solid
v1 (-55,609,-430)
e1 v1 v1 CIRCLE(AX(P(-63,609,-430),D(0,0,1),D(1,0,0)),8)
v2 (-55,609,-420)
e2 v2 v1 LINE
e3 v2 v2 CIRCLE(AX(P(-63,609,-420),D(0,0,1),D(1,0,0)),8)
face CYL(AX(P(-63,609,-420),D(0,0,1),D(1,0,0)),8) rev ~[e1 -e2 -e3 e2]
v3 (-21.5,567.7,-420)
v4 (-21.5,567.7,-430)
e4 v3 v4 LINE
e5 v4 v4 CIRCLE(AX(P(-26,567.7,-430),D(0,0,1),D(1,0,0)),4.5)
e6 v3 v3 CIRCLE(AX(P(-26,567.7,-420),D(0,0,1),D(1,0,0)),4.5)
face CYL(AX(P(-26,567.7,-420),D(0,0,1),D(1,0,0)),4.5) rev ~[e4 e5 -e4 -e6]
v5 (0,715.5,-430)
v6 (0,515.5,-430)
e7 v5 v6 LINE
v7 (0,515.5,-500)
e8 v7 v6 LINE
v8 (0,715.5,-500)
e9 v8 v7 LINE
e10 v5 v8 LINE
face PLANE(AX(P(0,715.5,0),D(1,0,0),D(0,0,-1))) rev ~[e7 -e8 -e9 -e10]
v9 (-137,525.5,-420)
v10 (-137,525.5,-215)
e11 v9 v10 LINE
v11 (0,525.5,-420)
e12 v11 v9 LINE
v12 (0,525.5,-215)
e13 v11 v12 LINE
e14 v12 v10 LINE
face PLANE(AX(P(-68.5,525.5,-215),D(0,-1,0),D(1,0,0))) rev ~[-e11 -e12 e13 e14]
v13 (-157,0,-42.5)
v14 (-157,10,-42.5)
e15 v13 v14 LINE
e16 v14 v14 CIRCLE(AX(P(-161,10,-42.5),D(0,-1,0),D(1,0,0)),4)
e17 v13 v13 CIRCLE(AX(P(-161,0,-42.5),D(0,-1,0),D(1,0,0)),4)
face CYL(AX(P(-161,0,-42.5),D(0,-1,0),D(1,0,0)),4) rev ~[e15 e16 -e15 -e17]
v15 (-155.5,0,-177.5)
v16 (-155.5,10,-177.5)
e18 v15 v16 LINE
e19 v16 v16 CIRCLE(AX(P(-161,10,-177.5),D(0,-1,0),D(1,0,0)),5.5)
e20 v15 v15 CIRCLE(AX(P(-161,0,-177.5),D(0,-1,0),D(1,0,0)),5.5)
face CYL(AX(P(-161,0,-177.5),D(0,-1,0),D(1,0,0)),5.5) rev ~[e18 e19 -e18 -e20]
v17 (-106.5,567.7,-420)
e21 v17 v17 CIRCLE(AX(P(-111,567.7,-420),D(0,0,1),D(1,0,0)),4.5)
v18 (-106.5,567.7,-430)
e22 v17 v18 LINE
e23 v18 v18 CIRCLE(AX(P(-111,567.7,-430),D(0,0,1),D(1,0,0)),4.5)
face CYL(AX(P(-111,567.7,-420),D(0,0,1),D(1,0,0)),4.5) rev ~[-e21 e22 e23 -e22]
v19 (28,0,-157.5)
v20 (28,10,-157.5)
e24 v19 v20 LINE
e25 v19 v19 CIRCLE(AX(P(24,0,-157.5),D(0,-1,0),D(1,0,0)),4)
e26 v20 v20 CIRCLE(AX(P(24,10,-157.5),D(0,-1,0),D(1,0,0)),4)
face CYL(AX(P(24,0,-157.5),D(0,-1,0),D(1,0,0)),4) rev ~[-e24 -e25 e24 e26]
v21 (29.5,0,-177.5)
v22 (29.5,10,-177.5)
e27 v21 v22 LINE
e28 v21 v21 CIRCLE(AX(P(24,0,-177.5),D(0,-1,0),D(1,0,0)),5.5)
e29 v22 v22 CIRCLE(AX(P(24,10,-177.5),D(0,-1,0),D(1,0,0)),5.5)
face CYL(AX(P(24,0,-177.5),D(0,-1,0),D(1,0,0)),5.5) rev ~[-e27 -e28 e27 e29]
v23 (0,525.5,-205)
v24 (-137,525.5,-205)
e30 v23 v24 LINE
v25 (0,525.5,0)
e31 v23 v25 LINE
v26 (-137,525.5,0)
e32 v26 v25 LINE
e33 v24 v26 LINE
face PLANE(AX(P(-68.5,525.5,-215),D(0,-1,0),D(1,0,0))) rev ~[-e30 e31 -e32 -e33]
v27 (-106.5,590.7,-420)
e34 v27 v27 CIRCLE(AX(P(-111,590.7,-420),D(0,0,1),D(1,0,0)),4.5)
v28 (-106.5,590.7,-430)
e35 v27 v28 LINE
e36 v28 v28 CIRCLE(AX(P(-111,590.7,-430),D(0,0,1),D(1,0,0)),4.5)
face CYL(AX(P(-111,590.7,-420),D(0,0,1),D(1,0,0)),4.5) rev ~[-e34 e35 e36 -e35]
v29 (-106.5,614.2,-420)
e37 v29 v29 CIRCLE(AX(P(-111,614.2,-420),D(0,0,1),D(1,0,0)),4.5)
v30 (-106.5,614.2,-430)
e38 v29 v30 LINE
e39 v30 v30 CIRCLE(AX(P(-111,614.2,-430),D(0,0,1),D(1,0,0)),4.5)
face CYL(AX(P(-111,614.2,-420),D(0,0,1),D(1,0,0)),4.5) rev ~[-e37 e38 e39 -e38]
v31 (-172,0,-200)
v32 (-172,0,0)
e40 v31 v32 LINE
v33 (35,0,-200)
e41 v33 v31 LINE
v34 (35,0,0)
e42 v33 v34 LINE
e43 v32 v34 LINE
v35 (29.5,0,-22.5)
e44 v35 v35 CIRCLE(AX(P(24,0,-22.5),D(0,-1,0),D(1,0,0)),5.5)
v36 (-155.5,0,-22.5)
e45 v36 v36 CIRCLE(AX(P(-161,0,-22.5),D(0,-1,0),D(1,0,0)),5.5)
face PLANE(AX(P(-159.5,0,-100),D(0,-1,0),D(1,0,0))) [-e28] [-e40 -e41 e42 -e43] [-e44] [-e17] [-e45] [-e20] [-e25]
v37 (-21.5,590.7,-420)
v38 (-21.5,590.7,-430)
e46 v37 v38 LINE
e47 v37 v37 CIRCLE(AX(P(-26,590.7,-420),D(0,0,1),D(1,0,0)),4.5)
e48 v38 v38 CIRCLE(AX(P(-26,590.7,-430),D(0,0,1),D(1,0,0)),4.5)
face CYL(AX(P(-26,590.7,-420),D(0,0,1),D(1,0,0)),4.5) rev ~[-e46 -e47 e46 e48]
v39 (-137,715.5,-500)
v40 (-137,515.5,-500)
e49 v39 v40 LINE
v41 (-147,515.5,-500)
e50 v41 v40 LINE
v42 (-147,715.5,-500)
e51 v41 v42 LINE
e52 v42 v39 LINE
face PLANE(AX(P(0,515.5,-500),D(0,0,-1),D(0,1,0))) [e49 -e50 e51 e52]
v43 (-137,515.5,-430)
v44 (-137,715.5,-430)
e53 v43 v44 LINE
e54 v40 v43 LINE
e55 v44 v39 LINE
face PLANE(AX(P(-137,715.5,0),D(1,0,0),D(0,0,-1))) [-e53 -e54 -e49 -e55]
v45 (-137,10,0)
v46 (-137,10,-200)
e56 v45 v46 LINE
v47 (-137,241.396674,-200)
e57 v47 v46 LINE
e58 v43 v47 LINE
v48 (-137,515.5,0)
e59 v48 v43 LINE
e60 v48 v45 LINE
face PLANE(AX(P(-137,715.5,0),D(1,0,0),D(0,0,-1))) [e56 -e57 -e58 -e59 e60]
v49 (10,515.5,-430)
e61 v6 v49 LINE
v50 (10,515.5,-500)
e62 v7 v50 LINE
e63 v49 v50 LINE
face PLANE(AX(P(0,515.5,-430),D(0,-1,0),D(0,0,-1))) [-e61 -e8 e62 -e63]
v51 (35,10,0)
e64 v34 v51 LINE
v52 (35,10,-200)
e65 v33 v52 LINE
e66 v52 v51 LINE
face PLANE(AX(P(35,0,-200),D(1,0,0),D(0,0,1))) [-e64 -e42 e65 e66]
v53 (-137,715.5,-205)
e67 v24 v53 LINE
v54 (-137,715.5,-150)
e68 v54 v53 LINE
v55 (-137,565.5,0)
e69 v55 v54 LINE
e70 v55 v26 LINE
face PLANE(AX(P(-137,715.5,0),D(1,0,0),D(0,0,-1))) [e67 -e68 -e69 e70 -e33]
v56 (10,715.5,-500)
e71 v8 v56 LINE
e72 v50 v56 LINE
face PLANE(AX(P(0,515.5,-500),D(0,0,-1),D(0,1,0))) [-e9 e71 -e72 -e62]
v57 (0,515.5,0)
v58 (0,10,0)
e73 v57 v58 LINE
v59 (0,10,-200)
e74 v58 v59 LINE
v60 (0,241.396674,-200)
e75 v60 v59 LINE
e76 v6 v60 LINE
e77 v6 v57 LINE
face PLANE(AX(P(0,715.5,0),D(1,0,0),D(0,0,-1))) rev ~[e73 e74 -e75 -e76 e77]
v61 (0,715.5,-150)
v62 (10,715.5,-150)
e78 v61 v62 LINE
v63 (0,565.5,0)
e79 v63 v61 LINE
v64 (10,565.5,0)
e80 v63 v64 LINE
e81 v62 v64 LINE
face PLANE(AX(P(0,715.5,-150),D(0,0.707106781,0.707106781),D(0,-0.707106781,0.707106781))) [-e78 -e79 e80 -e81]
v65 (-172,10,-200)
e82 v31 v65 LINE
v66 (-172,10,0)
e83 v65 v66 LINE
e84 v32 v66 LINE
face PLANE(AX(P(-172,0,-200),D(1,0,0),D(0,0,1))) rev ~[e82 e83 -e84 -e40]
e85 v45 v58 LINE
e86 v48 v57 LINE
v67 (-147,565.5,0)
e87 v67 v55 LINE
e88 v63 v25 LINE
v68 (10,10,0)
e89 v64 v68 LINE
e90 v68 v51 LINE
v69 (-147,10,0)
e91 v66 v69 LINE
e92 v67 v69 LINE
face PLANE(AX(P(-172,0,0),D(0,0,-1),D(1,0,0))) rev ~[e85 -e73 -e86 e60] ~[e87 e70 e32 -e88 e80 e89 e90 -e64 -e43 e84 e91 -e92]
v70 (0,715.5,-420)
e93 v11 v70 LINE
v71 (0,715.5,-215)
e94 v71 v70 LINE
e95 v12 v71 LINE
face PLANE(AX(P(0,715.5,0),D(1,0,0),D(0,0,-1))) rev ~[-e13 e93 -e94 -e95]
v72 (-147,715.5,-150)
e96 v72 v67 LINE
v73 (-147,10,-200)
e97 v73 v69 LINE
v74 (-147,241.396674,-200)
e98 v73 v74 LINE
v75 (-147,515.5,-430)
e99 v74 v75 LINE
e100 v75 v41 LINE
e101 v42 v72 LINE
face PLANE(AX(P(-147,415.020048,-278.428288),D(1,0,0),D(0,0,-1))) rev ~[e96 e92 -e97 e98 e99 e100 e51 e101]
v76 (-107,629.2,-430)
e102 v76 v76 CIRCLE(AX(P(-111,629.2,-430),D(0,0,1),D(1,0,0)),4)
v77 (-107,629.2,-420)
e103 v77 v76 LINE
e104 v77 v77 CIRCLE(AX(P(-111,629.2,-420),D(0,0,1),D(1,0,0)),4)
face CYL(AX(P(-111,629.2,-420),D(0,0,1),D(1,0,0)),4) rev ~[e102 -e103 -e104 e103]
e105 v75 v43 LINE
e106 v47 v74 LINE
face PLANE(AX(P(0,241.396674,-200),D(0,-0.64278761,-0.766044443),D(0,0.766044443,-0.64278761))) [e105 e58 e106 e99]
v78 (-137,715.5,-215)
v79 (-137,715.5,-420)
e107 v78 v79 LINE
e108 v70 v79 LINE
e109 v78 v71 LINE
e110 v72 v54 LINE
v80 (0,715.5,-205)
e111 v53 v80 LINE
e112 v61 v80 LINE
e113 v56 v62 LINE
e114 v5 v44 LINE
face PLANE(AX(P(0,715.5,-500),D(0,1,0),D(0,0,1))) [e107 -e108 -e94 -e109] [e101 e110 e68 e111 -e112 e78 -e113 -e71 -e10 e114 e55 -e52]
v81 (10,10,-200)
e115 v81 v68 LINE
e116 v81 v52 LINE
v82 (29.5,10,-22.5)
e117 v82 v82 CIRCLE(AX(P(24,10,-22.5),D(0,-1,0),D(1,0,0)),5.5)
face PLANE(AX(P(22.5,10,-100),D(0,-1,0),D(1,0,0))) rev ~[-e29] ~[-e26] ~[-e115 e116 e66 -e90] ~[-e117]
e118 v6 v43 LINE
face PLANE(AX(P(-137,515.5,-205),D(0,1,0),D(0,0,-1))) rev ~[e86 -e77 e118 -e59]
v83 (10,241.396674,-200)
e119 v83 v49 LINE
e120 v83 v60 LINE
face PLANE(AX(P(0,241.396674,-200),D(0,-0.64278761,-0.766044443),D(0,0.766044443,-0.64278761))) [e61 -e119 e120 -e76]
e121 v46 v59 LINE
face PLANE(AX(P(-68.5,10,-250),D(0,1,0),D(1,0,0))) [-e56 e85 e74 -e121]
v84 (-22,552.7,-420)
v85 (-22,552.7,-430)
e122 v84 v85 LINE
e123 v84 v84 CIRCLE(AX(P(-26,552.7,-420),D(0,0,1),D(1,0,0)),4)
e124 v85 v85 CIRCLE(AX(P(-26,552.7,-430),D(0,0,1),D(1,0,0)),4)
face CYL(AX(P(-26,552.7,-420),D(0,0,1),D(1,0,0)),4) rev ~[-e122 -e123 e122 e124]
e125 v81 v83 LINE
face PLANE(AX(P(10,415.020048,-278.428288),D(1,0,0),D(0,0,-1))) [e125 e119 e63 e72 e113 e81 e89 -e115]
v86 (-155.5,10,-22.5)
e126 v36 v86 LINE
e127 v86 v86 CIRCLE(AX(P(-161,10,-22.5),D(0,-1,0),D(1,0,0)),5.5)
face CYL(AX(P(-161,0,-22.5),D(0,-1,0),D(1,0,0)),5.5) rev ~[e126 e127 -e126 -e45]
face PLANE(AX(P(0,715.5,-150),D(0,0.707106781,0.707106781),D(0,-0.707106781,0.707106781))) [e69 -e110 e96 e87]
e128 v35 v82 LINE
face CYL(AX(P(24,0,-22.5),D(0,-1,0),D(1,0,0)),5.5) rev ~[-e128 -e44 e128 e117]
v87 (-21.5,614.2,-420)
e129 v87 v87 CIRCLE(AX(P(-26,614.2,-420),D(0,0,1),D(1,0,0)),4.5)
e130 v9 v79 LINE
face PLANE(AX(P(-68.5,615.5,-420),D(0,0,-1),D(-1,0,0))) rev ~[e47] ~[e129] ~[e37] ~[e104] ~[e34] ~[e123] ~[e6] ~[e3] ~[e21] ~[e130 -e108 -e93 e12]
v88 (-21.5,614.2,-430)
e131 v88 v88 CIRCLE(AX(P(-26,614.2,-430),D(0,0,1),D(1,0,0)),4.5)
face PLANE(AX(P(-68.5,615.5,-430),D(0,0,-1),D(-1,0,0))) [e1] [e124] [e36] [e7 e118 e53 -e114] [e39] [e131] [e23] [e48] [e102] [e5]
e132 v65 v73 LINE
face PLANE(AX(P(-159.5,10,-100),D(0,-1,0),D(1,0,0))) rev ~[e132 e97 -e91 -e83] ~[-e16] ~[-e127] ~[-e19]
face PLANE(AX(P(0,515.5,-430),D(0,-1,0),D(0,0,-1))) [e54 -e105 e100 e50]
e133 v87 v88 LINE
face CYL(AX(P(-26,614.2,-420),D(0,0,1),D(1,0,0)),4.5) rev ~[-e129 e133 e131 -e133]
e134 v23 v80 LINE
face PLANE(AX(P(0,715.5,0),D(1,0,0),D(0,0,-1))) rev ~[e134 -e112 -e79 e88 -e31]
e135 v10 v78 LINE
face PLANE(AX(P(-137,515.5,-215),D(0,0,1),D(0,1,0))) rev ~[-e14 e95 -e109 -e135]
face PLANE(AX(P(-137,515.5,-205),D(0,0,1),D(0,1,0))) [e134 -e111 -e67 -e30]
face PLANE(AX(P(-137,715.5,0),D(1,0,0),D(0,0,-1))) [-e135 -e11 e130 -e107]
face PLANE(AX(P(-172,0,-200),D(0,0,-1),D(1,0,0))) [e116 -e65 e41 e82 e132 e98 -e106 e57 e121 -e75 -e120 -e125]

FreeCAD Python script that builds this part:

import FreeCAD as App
import Part
import Sketcher

V = App.Vector
Q = App.Units.Quantity

doc = App.newDocument("Part")
params = doc.addObject("Spreadsheet::Sheet", "Params")
for row, (alias, value) in enumerate([
    ("sketch1_width", "200 mm"),
    ("sketch1_height", "70 mm"),
    ("sketch1_height2", "350 mm"),
    ("sketch1_width2", "565.5 mm"),
    ("pad1_length", "10 mm"),
    ("pad1_length2", "147 mm"),
    ("sketch2_width", "137 mm"),
    ("sketch2_height", "500 mm"),
    ("pocket1_length", "705.5 mm"),
    ("sketch3_width", "137 mm"),
    ("sketch3_height", "200 mm"),
    ("pad2_length", "10 mm"),
    ("sketch4_diameter", "9 mm"),
    ("sketch5_diameter", "9 mm"),
    ("sketch6_diameter", "9 mm"),
    ("sketch7_diameter", "9 mm"),
    ("sketch8_diameter", "16 mm"),
    ("sketch9_diameter", "8 mm"),
    ("sketch10_diameter", "8 mm"),
    ("sketch11_diameter", "9 mm"),
    ("sketch12_diameter", "9 mm"),
    ("sketch13_width", "25 mm"),
    ("sketch13_height", "200 mm"),
    ("pad3_length", "10 mm"),
    ("sketch14_diameter", "11 mm"),
    ("sketch14_diameter2", "8 mm"),
    ("sketch15_width", "137 mm"),
    ("sketch15_height", "430 mm"),
    ("pad4_length", "10 mm"),
    ("sketch16_width", "200 mm"),
    ("sketch16_height", "10 mm"),
    ("pad5_length", "137 mm"),
], start=1):
    params.set(f"A{row}", alias)
    params.set(f"B{row}", "=" + value)
    params.setAlias(f"B{row}", alias)

body = doc.addObject("PartDesign::Body", "Body")

sketch1 = body.newObject("Sketcher::SketchObject", "Sketch")
sketch1.AttachmentSupport = (doc.getObject("YZ_Plane"), [""])
sketch1.MapMode = "FlatFace"
sketch1.addGeometry(Part.LineSegment(V(241.396674, -200, 0), V(515.5, -430, 0)), False)
sketch1.addGeometry(Part.LineSegment(V(515.5, -430, 0), V(515.5, -500, 0)), False)
sketch1.addGeometry(Part.LineSegment(V(515.5, -500, 0), V(715.5, -500, 0)), False)
sketch1.addGeometry(Part.LineSegment(V(715.5, -500, 0), V(715.5, -150, 0)), False)
sketch1.addGeometry(Part.LineSegment(V(715.5, -150, 0), V(565.5, 0, 0)), False)
sketch1.addGeometry(Part.LineSegment(V(565.5, 0, 0), V(0, 0, 0)), False)
sketch1.addGeometry(Part.LineSegment(V(0, 0, 0), V(0, -200, 0)), False)
sketch1.addGeometry(Part.LineSegment(V(0, -200, 0), V(241.396674, -200, 0)), False)
sketch1.addConstraint(Sketcher.Constraint("Coincident", 0, 2, 1, 1))
sketch1.addConstraint(Sketcher.Constraint("Coincident", 1, 2, 2, 1))
sketch1.addConstraint(Sketcher.Constraint("Coincident", 2, 2, 3, 1))
sketch1.addConstraint(Sketcher.Constraint("Coincident", 3, 2, 4, 1))
sketch1.addConstraint(Sketcher.Constraint("Coincident", 4, 2, 5, 1))
sketch1.addConstraint(Sketcher.Constraint("Coincident", 5, 2, 6, 1))
sketch1.addConstraint(Sketcher.Constraint("Coincident", 6, 2, 7, 1))
sketch1.addConstraint(Sketcher.Constraint("Coincident", 7, 2, 0, 1))
sketch1.addConstraint(Sketcher.Constraint("Vertical", 1))
sketch1.addConstraint(Sketcher.Constraint("Horizontal", 2))
sketch1.addConstraint(Sketcher.Constraint("Vertical", 3))
sketch1.addConstraint(Sketcher.Constraint("Horizontal", 5))
sketch1.addConstraint(Sketcher.Constraint("Vertical", 6))
sketch1.addConstraint(Sketcher.Constraint("Horizontal", 7))
sketch1.addConstraint(Sketcher.Constraint("Coincident", 5, 2, -1, 1))
sketch1.addConstraint(Sketcher.Constraint("Equal", 2, 6))
sketch1.addConstraint(Sketcher.Constraint("DistanceX", 2, 1, 2, 2, 200.0))
sketch1.addConstraint(Sketcher.Constraint("DistanceY", 1, 2, 1, 1, 70.0))
sketch1.addConstraint(Sketcher.Constraint("DistanceY", 3, 1, 3, 2, 350.0))
sketch1.addConstraint(Sketcher.Constraint("Angle", 0, Q("-40 deg")))
sketch1.addConstraint(Sketcher.Constraint("Angle", 4, Q("135 deg")))
sketch1.addConstraint(Sketcher.Constraint("DistanceX", 5, 2, 5, 1, 565.5))
sketch1.addConstraint(Sketcher.Constraint("DistanceY", 0, 2, -1, 1, 430.0))
sketch1.setExpression("Constraints[16]", "Params.sketch1_width")
sketch1.setExpression("Constraints[17]", "Params.sketch1_height")
sketch1.setExpression("Constraints[18]", "Params.sketch1_height2")
sketch1.setExpression("Constraints[21]", "Params.sketch1_width2")
pad1 = body.newObject("PartDesign::Pad", "Pad")
pad1.Profile = sketch1
pad1.Type = "TwoLengths"
pad1.setExpression("Length", "Params.pad1_length")
pad1.setExpression("Length2", "Params.pad1_length2")

sketch2 = body.newObject("Sketcher::SketchObject", "Sketch001")
sketch2.AttachmentSupport = (doc.getObject("XZ_Plane"), [""])
sketch2.MapMode = "FlatFace"
sketch2.AttachmentOffset = App.Placement(V(0, 0, -715.5), App.Rotation())
sketch2.addGeometry(Part.LineSegment(V(-137, -500, 0), V(-137, 0, 0)), False)
sketch2.addGeometry(Part.LineSegment(V(-137, 0, 0), V(0, 0, 0)), False)
sketch2.addGeometry(Part.LineSegment(V(0, 0, 0), V(0, -500, 0)), False)
sketch2.addGeometry(Part.LineSegment(V(0, -500, 0), V(-137, -500, 0)), False)
sketch2.addConstraint(Sketcher.Constraint("Coincident", 0, 2, 1, 1))
sketch2.addConstraint(Sketcher.Constraint("Coincident", 1, 2, 2, 1))
sketch2.addConstraint(Sketcher.Constraint("Coincident", 2, 2, 3, 1))
sketch2.addConstraint(Sketcher.Constraint("Coincident", 3, 2, 0, 1))
sketch2.addConstraint(Sketcher.Constraint("Vertical", 0))
sketch2.addConstraint(Sketcher.Constraint("Horizontal", 1))
sketch2.addConstraint(Sketcher.Constraint("Vertical", 2))
sketch2.addConstraint(Sketcher.Constraint("Horizontal", 3))
sketch2.addConstraint(Sketcher.Constraint("Coincident", 1, 2, -1, 1))
sketch2.addConstraint(Sketcher.Constraint("DistanceX", 1, 1, 1, 2, 137.0))
sketch2.addConstraint(Sketcher.Constraint("DistanceY", 0, 1, 0, 2, 500.0))
sketch2.setExpression("Constraints[9]", "Params.sketch2_width")
sketch2.setExpression("Constraints[10]", "Params.sketch2_height")
pocket1 = body.newObject("PartDesign::Pocket", "Pocket")
pocket1.Profile = sketch2
pocket1.setExpression("Length", "Params.pocket1_length")
pocket1.Reversed = True

sketch3 = body.newObject("Sketcher::SketchObject", "Sketch002")
sketch3.AttachmentSupport = (doc.getObject("XY_Plane"), [""])
sketch3.MapMode = "FlatFace"
sketch3.AttachmentOffset = App.Placement(V(0, 0, -430), App.Rotation())
sketch3.addGeometry(Part.LineSegment(V(0, 715.5, 0), V(0, 515.5, 0)), False)
sketch3.addGeometry(Part.LineSegment(V(0, 515.5, 0), V(-137, 515.5, 0)), False)
sketch3.addGeometry(Part.LineSegment(V(-137, 515.5, 0), V(-137, 715.5, 0)), False)
sketch3.addGeometry(Part.LineSegment(V(-137, 715.5, 0), V(0, 715.5, 0)), False)
sketch3.addConstraint(Sketcher.Constraint("Coincident", 0, 2, 1, 1))
sketch3.addConstraint(Sketcher.Constraint("Coincident", 1, 2, 2, 1))
sketch3.addConstraint(Sketcher.Constraint("Coincident", 2, 2, 3, 1))
sketch3.addConstraint(Sketcher.Constraint("Coincident", 3, 2, 0, 1))
sketch3.addConstraint(Sketcher.Constraint("Vertical", 0))
sketch3.addConstraint(Sketcher.Constraint("Horizontal", 1))
sketch3.addConstraint(Sketcher.Constraint("Vertical", 2))
sketch3.addConstraint(Sketcher.Constraint("Horizontal", 3))
sketch3.addConstraint(Sketcher.Constraint("PointOnObject", 0, 2, -2))
sketch3.addConstraint(Sketcher.Constraint("DistanceX", 1, 2, 1, 1, 137.0))
sketch3.addConstraint(Sketcher.Constraint("DistanceY", 0, 2, 0, 1, 200.0))
sketch3.addConstraint(Sketcher.Constraint("DistanceY", -1, 1, 0, 2, 515.5))
sketch3.setExpression("Constraints[9]", "Params.sketch3_width")
sketch3.setExpression("Constraints[10]", "Params.sketch3_height")
pad2 = body.newObject("PartDesign::Pad", "Pad001")
pad2.Profile = sketch3
pad2.setExpression("Length", "Params.pad2_length")

sketch4 = body.newObject("Sketcher::SketchObject", "Sketch003")
sketch4.AttachmentSupport = (doc.getObject("XY_Plane"), [""])
sketch4.MapMode = "FlatFace"
sketch4.AttachmentOffset = App.Placement(V(0, 0, -420), App.Rotation())
sketch4.addGeometry(Part.Circle(V(-111, 567.7, 0), V(0, 0, 1), 4.5), False)
sketch4.addConstraint(Sketcher.Constraint("Diameter", 0, 9.0))
sketch4.addConstraint(Sketcher.Constraint("DistanceX", 0, 3, -1, 1, 111.0))
sketch4.addConstraint(Sketcher.Constraint("DistanceY", -1, 1, 0, 3, 567.7))
sketch4.setExpression("Constraints[0]", "Params.sketch4_diameter")
pocket2 = body.newObject("PartDesign::Pocket", "Pocket001")
pocket2.Profile = sketch4
pocket2.Type = "UpToFirst"

sketch5 = body.newObject("Sketcher::SketchObject", "Sketch004")
sketch5.AttachmentSupport = (doc.getObject("XY_Plane"), [""])
sketch5.MapMode = "FlatFace"
sketch5.AttachmentOffset = App.Placement(V(0, 0, -420), App.Rotation())
sketch5.addGeometry(Part.Circle(V(-26, 567.7, 0), V(0, 0, 1), 4.5), False)
sketch5.addConstraint(Sketcher.Constraint("Diameter", 0, 9.0))
sketch5.addConstraint(Sketcher.Constraint("DistanceX", 0, 3, -1, 1, 26.0))
sketch5.addConstraint(Sketcher.Constraint("DistanceY", -1, 1, 0, 3, 567.7))
sketch5.setExpression("Constraints[0]", "Params.sketch5_diameter")
pocket3 = body.newObject("PartDesign::Pocket", "Pocket002")
pocket3.Profile = sketch5
pocket3.Type = "UpToFirst"

sketch6 = body.newObject("Sketcher::SketchObject", "Sketch005")
sketch6.AttachmentSupport = (doc.getObject("XY_Plane"), [""])
sketch6.MapMode = "FlatFace"
sketch6.AttachmentOffset = App.Placement(V(0, 0, -420), App.Rotation())
sketch6.addGeometry(Part.Circle(V(-111, 614.2, 0), V(0, 0, 1), 4.5), False)
sketch6.addConstraint(Sketcher.Constraint("Diameter", 0, 9.0))
sketch6.addConstraint(Sketcher.Constraint("DistanceX", 0, 3, -1, 1, 111.0))
sketch6.addConstraint(Sketcher.Constraint("DistanceY", -1, 1, 0, 3, 614.2))
sketch6.setExpression("Constraints[0]", "Params.sketch6_diameter")
pocket4 = body.newObject("PartDesign::Pocket", "Pocket003")
pocket4.Profile = sketch6
pocket4.Type = "UpToFirst"

sketch7 = body.newObject("Sketcher::SketchObject", "Sketch006")
sketch7.AttachmentSupport = (doc.getObject("XY_Plane"), [""])
sketch7.MapMode = "FlatFace"
sketch7.AttachmentOffset = App.Placement(V(0, 0, -420), App.Rotation())
sketch7.addGeometry(Part.Circle(V(-26, 614.2, 0), V(0, 0, 1), 4.5), False)
sketch7.addConstraint(Sketcher.Constraint("Diameter", 0, 9.0))
sketch7.addConstraint(Sketcher.Constraint("DistanceX", 0, 3, -1, 1, 26.0))
sketch7.addConstraint(Sketcher.Constraint("DistanceY", -1, 1, 0, 3, 614.2))
sketch7.setExpression("Constraints[0]", "Params.sketch7_diameter")
pocket5 = body.newObject("PartDesign::Pocket", "Pocket004")
pocket5.Profile = sketch7
pocket5.Type = "UpToFirst"

sketch8 = body.newObject("Sketcher::SketchObject", "Sketch007")
sketch8.AttachmentSupport = (doc.getObject("XY_Plane"), [""])
sketch8.MapMode = "FlatFace"
sketch8.AttachmentOffset = App.Placement(V(0, 0, -420), App.Rotation())
sketch8.addGeometry(Part.Circle(V(-63, 609, 0), V(0, 0, 1), 8), False)
sketch8.addConstraint(Sketcher.Constraint("Diameter", 0, 16.0))
sketch8.addConstraint(Sketcher.Constraint("DistanceX", 0, 3, -1, 1, 63.0))
sketch8.addConstraint(Sketcher.Constraint("DistanceY", -1, 1, 0, 3, 609.0))
sketch8.setExpression("Constraints[0]", "Params.sketch8_diameter")
pocket6 = body.newObject("PartDesign::Pocket", "Pocket005")
pocket6.Profile = sketch8
pocket6.Type = "UpToFirst"

sketch9 = body.newObject("Sketcher::SketchObject", "Sketch008")
sketch9.AttachmentSupport = (doc.getObject("XY_Plane"), [""])
sketch9.MapMode = "FlatFace"
sketch9.AttachmentOffset = App.Placement(V(0, 0, -420), App.Rotation())
sketch9.addGeometry(Part.Circle(V(-111, 629.2, 0), V(0, 0, 1), 4), False)
sketch9.addConstraint(Sketcher.Constraint("Diameter", 0, 8.0))
sketch9.addConstraint(Sketcher.Constraint("DistanceX", 0, 3, -1, 1, 111.0))
sketch9.addConstraint(Sketcher.Constraint("DistanceY", -1, 1, 0, 3, 629.2))
sketch9.setExpression("Constraints[0]", "Params.sketch9_diameter")
pocket7 = body.newObject("PartDesign::Pocket", "Pocket006")
pocket7.Profile = sketch9
pocket7.Type = "UpToFirst"

sketch10 = body.newObject("Sketcher::SketchObject", "Sketch009")
sketch10.AttachmentSupport = (doc.getObject("XY_Plane"), [""])
sketch10.MapMode = "FlatFace"
sketch10.AttachmentOffset = App.Placement(V(0, 0, -420), App.Rotation())
sketch10.addGeometry(Part.Circle(V(-26, 552.7, 0), V(0, 0, 1), 4), False)
sketch10.addConstraint(Sketcher.Constraint("Diameter", 0, 8.0))
sketch10.addConstraint(Sketcher.Constraint("DistanceX", 0, 3, -1, 1, 26.0))
sketch10.addConstraint(Sketcher.Constraint("DistanceY", -1, 1, 0, 3, 552.7))
sketch10.setExpression("Constraints[0]", "Params.sketch10_diameter")
pocket8 = body.newObject("PartDesign::Pocket", "Pocket007")
pocket8.Profile = sketch10
pocket8.Type = "UpToFirst"

sketch11 = body.newObject("Sketcher::SketchObject", "Sketch010")
sketch11.AttachmentSupport = (doc.getObject("XY_Plane"), [""])
sketch11.MapMode = "FlatFace"
sketch11.AttachmentOffset = App.Placement(V(0, 0, -420), App.Rotation())
sketch11.addGeometry(Part.Circle(V(-111, 590.7, 0), V(0, 0, 1), 4.5), False)
sketch11.addConstraint(Sketcher.Constraint("Diameter", 0, 9.0))
sketch11.addConstraint(Sketcher.Constraint("DistanceX", 0, 3, -1, 1, 111.0))
sketch11.addConstraint(Sketcher.Constraint("DistanceY", -1, 1, 0, 3, 590.7))
sketch11.setExpression("Constraints[0]", "Params.sketch11_diameter")
pocket9 = body.newObject("PartDesign::Pocket", "Pocket008")
pocket9.Profile = sketch11
pocket9.Type = "UpToFirst"

sketch12 = body.newObject("Sketcher::SketchObject", "Sketch011")
sketch12.AttachmentSupport = (doc.getObject("XY_Plane"), [""])
sketch12.MapMode = "FlatFace"
sketch12.AttachmentOffset = App.Placement(V(0, 0, -420), App.Rotation())
sketch12.addGeometry(Part.Circle(V(-26, 590.7, 0), V(0, 0, 1), 4.5), False)
sketch12.addConstraint(Sketcher.Constraint("Diameter", 0, 9.0))
sketch12.addConstraint(Sketcher.Constraint("DistanceX", 0, 3, -1, 1, 26.0))
sketch12.addConstraint(Sketcher.Constraint("DistanceY", -1, 1, 0, 3, 590.7))
sketch12.setExpression("Constraints[0]", "Params.sketch12_diameter")
pocket10 = body.newObject("PartDesign::Pocket", "Pocket009")
pocket10.Profile = sketch12
pocket10.Type = "UpToFirst"

sketch13 = body.newObject("Sketcher::SketchObject", "Sketch012")
sketch13.AttachmentSupport = (doc.getObject("XZ_Plane"), [""])
sketch13.MapMode = "FlatFace"
sketch13.addGeometry(Part.LineSegment(V(-172, 0, 0), V(-172, -200, 0)), False)
sketch13.addGeometry(Part.LineSegment(V(-172, -200, 0), V(-147, -200, 0)), False)
sketch13.addGeometry(Part.LineSegment(V(-147, -200, 0), V(-147, 0, 0)), False)
sketch13.addGeometry(Part.LineSegment(V(-147, 0, 0), V(-172, 0, 0)), False)
sketch13.addGeometry(Part.LineSegment(V(10, 0, 0), V(10, -200, 0)), False)
sketch13.addGeometry(Part.LineSegment(V(10, -200, 0), V(35, -200, 0)), False)
sketch13.addGeometry(Part.LineSegment(V(35, -200, 0), V(35, 0, 0)), False)
sketch13.addGeometry(Part.LineSegment(V(35, 0, 0), V(10, 0, 0)), False)
sketch13.addConstraint(Sketcher.Constraint("Coincident", 0, 2, 1, 1))
sketch13.addConstraint(Sketcher.Constraint("Coincident", 1, 2, 2, 1))
sketch13.addConstraint(Sketcher.Constraint("Coincident", 2, 2, 3, 1))
sketch13.addConstraint(Sketcher.Constraint("Coincident", 3, 2, 0, 1))
sketch13.addConstraint(Sketcher.Constraint("Coincident", 4, 2, 5, 1))
sketch13.addConstraint(Sketcher.Constraint("Coincident", 5, 2, 6, 1))
sketch13.addConstraint(Sketcher.Constraint("Coincident", 6, 2, 7, 1))
sketch13.addConstraint(Sketcher.Constraint("Coincident", 7, 2, 4, 1))
sketch13.addConstraint(Sketcher.Constraint("Vertical", 0))
sketch13.addConstraint(Sketcher.Constraint("Horizontal", 1))
sketch13.addConstraint(Sketcher.Constraint("Vertical", 2))
sketch13.addConstraint(Sketcher.Constraint("Horizontal", 3))
sketch13.addConstraint(Sketcher.Constraint("Vertical", 4))
sketch13.addConstraint(Sketcher.Constraint("Horizontal", 5))
sketch13.addConstraint(Sketcher.Constraint("Vertical", 6))
sketch13.addConstraint(Sketcher.Constraint("Horizontal", 7))
sketch13.addConstraint(Sketcher.Constraint("PointOnObject", 2, 2, -1))
sketch13.addConstraint(Sketcher.Constraint("PointOnObject", 6, 2, -1))
sketch13.addConstraint(Sketcher.Constraint("Horizontal", 1, 2, 4, 2))
sketch13.addConstraint(Sketcher.Constraint("Equal", 3, 5))
sketch13.addConstraint(Sketcher.Constraint("DistanceX", 1, 1, 1, 2, 25.0))
sketch13.addConstraint(Sketcher.Constraint("DistanceY", 0, 2, 0, 1, 200.0))
sketch13.addConstraint(Sketcher.Constraint("DistanceX", 0, 2, -1, 1, 172.0))
sketch13.addConstraint(Sketcher.Constraint("DistanceX", -1, 1, 4, 2, 10.0))
sketch13.setExpression("Constraints[20]", "Params.sketch13_width")
sketch13.setExpression("Constraints[21]", "Params.sketch13_height")
pad3 = body.newObject("PartDesign::Pad", "Pad002")
pad3.Profile = sketch13
pad3.setExpression("Length", "Params.pad3_length")
pad3.Reversed = True

sketch14 = body.newObject("Sketcher::SketchObject", "Sketch013")
sketch14.AttachmentSupport = (doc.getObject("XZ_Plane"), [""])
sketch14.MapMode = "FlatFace"
sketch14.addGeometry(Part.Circle(V(-161, -22.5, 0), V(0, 0, 1), 5.5), False)
sketch14.addGeometry(Part.Circle(V(24, -22.5, 0), V(0, 0, 1), 5.5), False)
sketch14.addGeometry(Part.Circle(V(24, -177.5, 0), V(0, 0, 1), 5.5), False)
sketch14.addGeometry(Part.Circle(V(-161, -177.5, 0), V(0, 0, 1), 5.5), False)
sketch14.addGeometry(Part.Circle(V(-161, -42.5, 0), V(0, 0, 1), 4), False)
sketch14.addGeometry(Part.Circle(V(24, -157.5, 0), V(0, 0, 1), 4), False)
sketch14.addConstraint(Sketcher.Constraint("Equal", 0, 1))
sketch14.addConstraint(Sketcher.Constraint("Equal", 1, 2))
sketch14.addConstraint(Sketcher.Constraint("Equal", 2, 3))
sketch14.addConstraint(Sketcher.Constraint("Equal", 4, 5))
sketch14.addConstraint(Sketcher.Constraint("Horizontal", 0, 3, 1, 3))
sketch14.addConstraint(Sketcher.Constraint("Horizontal", 2, 3, 3, 3))
sketch14.addConstraint(Sketcher.Constraint("Vertical", 1, 3, 2, 3))
sketch14.addConstraint(Sketcher.Constraint("Vertical", 0, 3, 3, 3))
sketch14.addConstraint(Sketcher.Constraint("Vertical", 3, 3, 4, 3))
sketch14.addConstraint(Sketcher.Constraint("Vertical", 2, 3, 5, 3))
sketch14.addConstraint(Sketcher.Constraint("Diameter", 0, 11.0))
sketch14.addConstraint(Sketcher.Constraint("Diameter", 4, 8.0))
sketch14.addConstraint(Sketcher.Constraint("DistanceX", 0, 3, -1, 1, 161.0))
sketch14.addConstraint(Sketcher.Constraint("DistanceX", -1, 1, 1, 3, 24.0))
sketch14.addConstraint(Sketcher.Constraint("DistanceY", 2, 3, 1, 3, 155.0))
sketch14.addConstraint(Sketcher.Constraint("DistanceY", 4, 3, 0, 3, 20.0))
sketch14.addConstraint(Sketcher.Constraint("DistanceY", 2, 3, 5, 3, 20.0))
sketch14.addConstraint(Sketcher.Constraint("DistanceY", 0, 3, -1, 1, 22.5))
sketch14.setExpression("Constraints[10]", "Params.sketch14_diameter")
sketch14.setExpression("Constraints[11]", "Params.sketch14_diameter2")
pocket11 = body.newObject("PartDesign::Pocket", "Pocket010")
pocket11.Profile = sketch14
pocket11.Type = "ThroughAll"

sketch15 = body.newObject("Sketcher::SketchObject", "Sketch014")
sketch15.AttachmentSupport = (doc.getObject("XZ_Plane"), [""])
sketch15.MapMode = "FlatFace"
sketch15.AttachmentOffset = App.Placement(V(0, 0, -515.5), App.Rotation())
sketch15.addGeometry(Part.LineSegment(V(-137, 0, 0), V(-137, -430, 0)), False)
sketch15.addGeometry(Part.LineSegment(V(-137, -430, 0), V(0, -430, 0)), False)
sketch15.addGeometry(Part.LineSegment(V(0, -430, 0), V(0, 0, 0)), False)
sketch15.addGeometry(Part.LineSegment(V(0, 0, 0), V(-137, 0, 0)), False)
sketch15.addConstraint(Sketcher.Constraint("Coincident", 0, 2, 1, 1))
sketch15.addConstraint(Sketcher.Constraint("Coincident", 1, 2, 2, 1))
sketch15.addConstraint(Sketcher.Constraint("Coincident", 2, 2, 3, 1))
sketch15.addConstraint(Sketcher.Constraint("Coincident", 3, 2, 0, 1))
sketch15.addConstraint(Sketcher.Constraint("Vertical", 0))
sketch15.addConstraint(Sketcher.Constraint("Horizontal", 1))
sketch15.addConstraint(Sketcher.Constraint("Vertical", 2))
sketch15.addConstraint(Sketcher.Constraint("Horizontal", 3))
sketch15.addConstraint(Sketcher.Constraint("Coincident", 2, 2, -1, 1))
sketch15.addConstraint(Sketcher.Constraint("DistanceX", 1, 1, 1, 2, 137.0))
sketch15.addConstraint(Sketcher.Constraint("DistanceY", 0, 2, 0, 1, 430.0))
sketch15.setExpression("Constraints[9]", "Params.sketch15_width")
sketch15.setExpression("Constraints[10]", "Params.sketch15_height")
pad4 = body.newObject("PartDesign::Pad", "Pad003")
pad4.Profile = sketch15
pad4.setExpression("Length", "Params.pad4_length")
pad4.Reversed = True

sketch16 = body.newObject("Sketcher::SketchObject", "Sketch015")
sketch16.AttachmentSupport = (doc.getObject("YZ_Plane"), [""])
sketch16.MapMode = "FlatFace"
sketch16.AttachmentOffset = App.Placement(V(0, 0, -137), App.Rotation())
sketch16.addGeometry(Part.LineSegment(V(715.5, -205, 0), V(515.5, -205, 0)), False)
sketch16.addGeometry(Part.LineSegment(V(515.5, -205, 0), V(515.5, -215, 0)), False)
sketch16.addGeometry(Part.LineSegment(V(515.5, -215, 0), V(715.5, -215, 0)), False)
sketch16.addGeometry(Part.LineSegment(V(715.5, -215, 0), V(715.5, -205, 0)), False)
sketch16.addConstraint(Sketcher.Constraint("Coincident", 0, 2, 1, 1))
sketch16.addConstraint(Sketcher.Constraint("Coincident", 1, 2, 2, 1))
sketch16.addConstraint(Sketcher.Constraint("Coincident", 2, 2, 3, 1))
sketch16.addConstraint(Sketcher.Constraint("Coincident", 3, 2, 0, 1))
sketch16.addConstraint(Sketcher.Constraint("Horizontal", 0))
sketch16.addConstraint(Sketcher.Constraint("Vertical", 1))
sketch16.addConstraint(Sketcher.Constraint("Horizontal", 2))
sketch16.addConstraint(Sketcher.Constraint("Vertical", 3))
sketch16.addConstraint(Sketcher.Constraint("DistanceX", 0, 2, 0, 1, 200.0))
sketch16.addConstraint(Sketcher.Constraint("DistanceY", 1, 2, 1, 1, 10.0))
sketch16.addConstraint(Sketcher.Constraint("DistanceY", 0, 2, -1, 1, 205.0))
sketch16.addConstraint(Sketcher.Constraint("DistanceX", -1, 1, 0, 2, 515.5))
sketch16.setExpression("Constraints[8]", "Params.sketch16_width")
sketch16.setExpression("Constraints[9]", "Params.sketch16_height")
pad5 = body.newObject("PartDesign::Pad", "Pad004")
pad5.Profile = sketch16
pad5.setExpression("Length", "Params.pad5_length")

doc.recompute()
